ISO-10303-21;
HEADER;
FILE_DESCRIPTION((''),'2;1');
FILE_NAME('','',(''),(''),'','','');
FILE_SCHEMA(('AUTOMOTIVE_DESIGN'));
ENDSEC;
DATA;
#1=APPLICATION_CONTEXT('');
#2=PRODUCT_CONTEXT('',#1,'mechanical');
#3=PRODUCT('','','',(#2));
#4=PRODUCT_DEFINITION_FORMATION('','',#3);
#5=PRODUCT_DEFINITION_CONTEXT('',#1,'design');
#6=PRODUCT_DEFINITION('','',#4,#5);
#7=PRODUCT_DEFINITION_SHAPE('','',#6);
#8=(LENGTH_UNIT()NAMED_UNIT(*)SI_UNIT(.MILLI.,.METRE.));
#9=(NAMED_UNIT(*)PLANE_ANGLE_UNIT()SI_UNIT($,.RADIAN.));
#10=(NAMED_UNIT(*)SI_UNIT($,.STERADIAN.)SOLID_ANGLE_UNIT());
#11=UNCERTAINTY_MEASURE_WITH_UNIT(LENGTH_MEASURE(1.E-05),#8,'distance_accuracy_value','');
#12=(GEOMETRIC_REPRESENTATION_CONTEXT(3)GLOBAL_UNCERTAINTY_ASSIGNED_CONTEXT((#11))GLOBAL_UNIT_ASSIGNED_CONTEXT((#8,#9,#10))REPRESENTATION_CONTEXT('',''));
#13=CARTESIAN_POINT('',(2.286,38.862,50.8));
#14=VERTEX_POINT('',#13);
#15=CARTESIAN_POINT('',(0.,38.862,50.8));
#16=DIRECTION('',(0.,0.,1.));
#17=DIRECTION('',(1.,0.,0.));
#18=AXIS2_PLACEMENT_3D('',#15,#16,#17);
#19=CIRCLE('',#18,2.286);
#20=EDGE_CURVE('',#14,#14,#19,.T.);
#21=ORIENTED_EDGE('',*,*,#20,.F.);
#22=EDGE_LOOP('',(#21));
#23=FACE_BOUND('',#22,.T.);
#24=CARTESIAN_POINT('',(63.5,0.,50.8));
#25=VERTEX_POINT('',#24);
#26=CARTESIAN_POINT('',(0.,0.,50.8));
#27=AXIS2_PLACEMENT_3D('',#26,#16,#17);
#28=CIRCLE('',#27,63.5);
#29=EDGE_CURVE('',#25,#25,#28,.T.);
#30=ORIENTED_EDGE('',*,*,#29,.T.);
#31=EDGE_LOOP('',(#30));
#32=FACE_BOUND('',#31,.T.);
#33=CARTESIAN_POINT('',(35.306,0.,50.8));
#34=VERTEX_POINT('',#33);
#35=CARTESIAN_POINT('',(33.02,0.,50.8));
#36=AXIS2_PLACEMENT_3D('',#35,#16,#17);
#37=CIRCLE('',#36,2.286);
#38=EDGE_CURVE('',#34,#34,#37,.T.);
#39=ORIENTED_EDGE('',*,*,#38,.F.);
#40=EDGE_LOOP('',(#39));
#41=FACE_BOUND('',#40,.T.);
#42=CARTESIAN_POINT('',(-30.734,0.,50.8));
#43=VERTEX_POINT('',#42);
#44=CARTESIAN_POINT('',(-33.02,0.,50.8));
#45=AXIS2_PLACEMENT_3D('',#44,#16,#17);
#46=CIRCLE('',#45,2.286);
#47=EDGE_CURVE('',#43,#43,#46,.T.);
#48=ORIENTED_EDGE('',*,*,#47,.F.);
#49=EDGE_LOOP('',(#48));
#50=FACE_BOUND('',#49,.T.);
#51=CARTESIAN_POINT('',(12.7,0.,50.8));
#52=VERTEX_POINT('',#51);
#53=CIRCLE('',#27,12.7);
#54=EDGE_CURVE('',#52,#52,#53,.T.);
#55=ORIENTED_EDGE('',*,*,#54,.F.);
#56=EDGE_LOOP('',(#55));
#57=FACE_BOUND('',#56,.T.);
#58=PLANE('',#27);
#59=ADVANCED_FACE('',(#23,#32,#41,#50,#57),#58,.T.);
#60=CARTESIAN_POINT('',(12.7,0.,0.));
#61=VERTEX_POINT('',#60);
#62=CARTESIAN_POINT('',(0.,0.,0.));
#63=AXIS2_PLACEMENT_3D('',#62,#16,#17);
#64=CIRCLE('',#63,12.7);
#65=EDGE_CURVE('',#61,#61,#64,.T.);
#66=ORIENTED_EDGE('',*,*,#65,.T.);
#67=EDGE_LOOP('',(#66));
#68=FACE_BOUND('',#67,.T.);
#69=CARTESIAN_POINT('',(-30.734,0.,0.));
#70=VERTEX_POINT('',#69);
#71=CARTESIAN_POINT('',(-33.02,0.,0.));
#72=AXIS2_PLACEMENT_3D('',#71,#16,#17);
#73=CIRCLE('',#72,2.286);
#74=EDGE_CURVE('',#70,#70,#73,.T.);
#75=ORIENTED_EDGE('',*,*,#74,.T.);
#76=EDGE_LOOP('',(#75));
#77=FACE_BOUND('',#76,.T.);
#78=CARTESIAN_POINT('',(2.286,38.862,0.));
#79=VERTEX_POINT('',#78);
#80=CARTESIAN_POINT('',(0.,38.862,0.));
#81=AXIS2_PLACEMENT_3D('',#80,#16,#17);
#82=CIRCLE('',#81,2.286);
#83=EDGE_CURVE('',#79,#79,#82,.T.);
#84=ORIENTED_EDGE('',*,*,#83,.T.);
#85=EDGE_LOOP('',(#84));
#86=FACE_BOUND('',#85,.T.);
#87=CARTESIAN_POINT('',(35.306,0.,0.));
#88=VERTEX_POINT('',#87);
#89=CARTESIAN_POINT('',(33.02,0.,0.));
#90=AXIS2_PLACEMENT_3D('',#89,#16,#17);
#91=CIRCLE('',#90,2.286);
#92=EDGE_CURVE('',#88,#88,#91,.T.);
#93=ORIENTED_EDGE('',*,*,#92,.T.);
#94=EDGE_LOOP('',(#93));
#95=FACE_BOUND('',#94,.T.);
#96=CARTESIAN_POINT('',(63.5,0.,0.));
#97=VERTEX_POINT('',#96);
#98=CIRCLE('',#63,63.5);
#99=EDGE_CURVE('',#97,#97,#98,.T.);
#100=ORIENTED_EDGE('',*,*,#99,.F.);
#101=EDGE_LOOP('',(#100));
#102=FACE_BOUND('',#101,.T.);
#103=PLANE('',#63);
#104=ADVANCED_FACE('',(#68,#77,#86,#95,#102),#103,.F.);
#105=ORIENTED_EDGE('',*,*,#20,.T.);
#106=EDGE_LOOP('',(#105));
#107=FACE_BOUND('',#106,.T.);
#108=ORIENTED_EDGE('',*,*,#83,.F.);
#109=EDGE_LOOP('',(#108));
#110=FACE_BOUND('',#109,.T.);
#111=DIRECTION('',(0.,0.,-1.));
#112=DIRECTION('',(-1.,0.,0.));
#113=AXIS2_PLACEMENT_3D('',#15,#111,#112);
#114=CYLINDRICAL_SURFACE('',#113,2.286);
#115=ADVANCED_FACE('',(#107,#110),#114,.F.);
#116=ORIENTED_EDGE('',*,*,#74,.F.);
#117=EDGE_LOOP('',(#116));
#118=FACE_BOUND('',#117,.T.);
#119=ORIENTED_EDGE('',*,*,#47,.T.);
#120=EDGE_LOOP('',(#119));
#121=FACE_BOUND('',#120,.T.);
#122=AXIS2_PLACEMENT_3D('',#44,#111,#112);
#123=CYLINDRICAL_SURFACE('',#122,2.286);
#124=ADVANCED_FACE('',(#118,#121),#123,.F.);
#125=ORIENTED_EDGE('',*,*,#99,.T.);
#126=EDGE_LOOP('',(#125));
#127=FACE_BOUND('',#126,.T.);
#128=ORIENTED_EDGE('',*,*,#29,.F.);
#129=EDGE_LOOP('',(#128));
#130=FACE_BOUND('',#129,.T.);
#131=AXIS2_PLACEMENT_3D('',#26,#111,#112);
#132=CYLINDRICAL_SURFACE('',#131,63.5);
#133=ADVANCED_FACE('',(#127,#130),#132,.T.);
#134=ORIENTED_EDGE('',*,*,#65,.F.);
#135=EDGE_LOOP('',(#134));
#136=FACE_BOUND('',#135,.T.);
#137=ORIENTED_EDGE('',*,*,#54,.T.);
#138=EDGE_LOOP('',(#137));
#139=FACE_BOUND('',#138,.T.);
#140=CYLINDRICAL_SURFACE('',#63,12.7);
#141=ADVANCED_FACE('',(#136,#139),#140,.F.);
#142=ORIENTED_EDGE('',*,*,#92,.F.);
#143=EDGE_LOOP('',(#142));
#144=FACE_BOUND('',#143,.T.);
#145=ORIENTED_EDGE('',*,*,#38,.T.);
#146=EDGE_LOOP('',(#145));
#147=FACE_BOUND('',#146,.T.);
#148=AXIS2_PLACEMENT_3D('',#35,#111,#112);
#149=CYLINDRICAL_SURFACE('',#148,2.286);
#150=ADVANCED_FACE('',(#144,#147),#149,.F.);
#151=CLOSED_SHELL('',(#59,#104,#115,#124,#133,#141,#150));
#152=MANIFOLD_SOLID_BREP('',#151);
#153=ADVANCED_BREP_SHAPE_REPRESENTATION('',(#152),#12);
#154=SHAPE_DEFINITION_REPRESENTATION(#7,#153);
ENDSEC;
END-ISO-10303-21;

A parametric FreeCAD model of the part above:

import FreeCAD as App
import Part
import Sketcher
Q = App.Units.Quantity

doc = App.newDocument("Part")
body = doc.addObject("PartDesign::Body", "Body")

# Sketch on XY plane
sketch1 = doc.addObject("Sketcher::SketchObject", "Sketch")
body.addObject(sketch1)
sketch1.AttachmentSupport = (doc.XY_Plane, [""])
sketch1.MapMode = "FlatFace"
sketch1.addGeometry(Part.Circle(App.Vector(0, 0, 0), App.Vector(0, 0, 1), 63.5), False)
sketch1.addGeometry(Part.Circle(App.Vector(-33, 0, 0), App.Vector(0, 0, 1), 2.3), False)
sketch1.addGeometry(Part.Circle(App.Vector(33, 0, 0), App.Vector(0, 0, 1), 2.3), False)
sketch1.addGeometry(Part.Circle(App.Vector(0, 38.9, 0), App.Vector(0, 0, 1), 2.3), False)
sketch1.addConstraint(Sketcher.Constraint("Coincident", 0, 3, -1, 1))
sketch1.addConstraint(Sketcher.Constraint("Equal", 1, 2))
sketch1.addConstraint(Sketcher.Constraint("Equal", 2, 3))
sketch1.addConstraint(Sketcher.Constraint("Symmetric", 1, 3, 2, 3, -1, 1))
sketch1.addConstraint(Sketcher.Constraint("PointOnObject", 1, 3, -1))
sketch1.addConstraint(Sketcher.Constraint("PointOnObject", 3, 3, -2))
sketch1.addConstraint(Sketcher.Constraint("Diameter", 0, Q("5 in")))
sketch1.addConstraint(Sketcher.Constraint("Diameter", 1, Q("0.18 in")))
sketch1.addConstraint(Sketcher.Constraint("DistanceX", 1, 3, -1, 1, Q("1.3 in")))
sketch1.addConstraint(Sketcher.Constraint("DistanceY", -1, 1, 3, 3, Q("1.53 in")))
pad1 = doc.addObject("PartDesign::Pad", "Pad")
body.addObject(pad1)
pad1.Profile = sketch1
pad1.Length = Q("2 in")

# Sketch on XY plane
sketch2 = doc.addObject("Sketcher::SketchObject", "Sketch001")
body.addObject(sketch2)
sketch2.AttachmentSupport = (doc.XY_Plane, [""])
sketch2.MapMode = "FlatFace"
sketch2.AttachmentOffset = App.Placement(App.Vector(0, 0, 2 * 25.4), App.Rotation())
sketch2.addGeometry(Part.Circle(App.Vector(0, 0, 0), App.Vector(0, 0, 1), 13), False)
sketch2.addConstraint(Sketcher.Constraint("Coincident", 0, 3, -1, 1))
sketch2.addConstraint(Sketcher.Constraint("Diameter", 0, Q("1 in")))
pocket1 = doc.addObject("PartDesign::Pocket", "Pocket")
body.addObject(pocket1)
pocket1.Profile = sketch2
pocket1.Type = "ThroughAll"

doc.recompute()
